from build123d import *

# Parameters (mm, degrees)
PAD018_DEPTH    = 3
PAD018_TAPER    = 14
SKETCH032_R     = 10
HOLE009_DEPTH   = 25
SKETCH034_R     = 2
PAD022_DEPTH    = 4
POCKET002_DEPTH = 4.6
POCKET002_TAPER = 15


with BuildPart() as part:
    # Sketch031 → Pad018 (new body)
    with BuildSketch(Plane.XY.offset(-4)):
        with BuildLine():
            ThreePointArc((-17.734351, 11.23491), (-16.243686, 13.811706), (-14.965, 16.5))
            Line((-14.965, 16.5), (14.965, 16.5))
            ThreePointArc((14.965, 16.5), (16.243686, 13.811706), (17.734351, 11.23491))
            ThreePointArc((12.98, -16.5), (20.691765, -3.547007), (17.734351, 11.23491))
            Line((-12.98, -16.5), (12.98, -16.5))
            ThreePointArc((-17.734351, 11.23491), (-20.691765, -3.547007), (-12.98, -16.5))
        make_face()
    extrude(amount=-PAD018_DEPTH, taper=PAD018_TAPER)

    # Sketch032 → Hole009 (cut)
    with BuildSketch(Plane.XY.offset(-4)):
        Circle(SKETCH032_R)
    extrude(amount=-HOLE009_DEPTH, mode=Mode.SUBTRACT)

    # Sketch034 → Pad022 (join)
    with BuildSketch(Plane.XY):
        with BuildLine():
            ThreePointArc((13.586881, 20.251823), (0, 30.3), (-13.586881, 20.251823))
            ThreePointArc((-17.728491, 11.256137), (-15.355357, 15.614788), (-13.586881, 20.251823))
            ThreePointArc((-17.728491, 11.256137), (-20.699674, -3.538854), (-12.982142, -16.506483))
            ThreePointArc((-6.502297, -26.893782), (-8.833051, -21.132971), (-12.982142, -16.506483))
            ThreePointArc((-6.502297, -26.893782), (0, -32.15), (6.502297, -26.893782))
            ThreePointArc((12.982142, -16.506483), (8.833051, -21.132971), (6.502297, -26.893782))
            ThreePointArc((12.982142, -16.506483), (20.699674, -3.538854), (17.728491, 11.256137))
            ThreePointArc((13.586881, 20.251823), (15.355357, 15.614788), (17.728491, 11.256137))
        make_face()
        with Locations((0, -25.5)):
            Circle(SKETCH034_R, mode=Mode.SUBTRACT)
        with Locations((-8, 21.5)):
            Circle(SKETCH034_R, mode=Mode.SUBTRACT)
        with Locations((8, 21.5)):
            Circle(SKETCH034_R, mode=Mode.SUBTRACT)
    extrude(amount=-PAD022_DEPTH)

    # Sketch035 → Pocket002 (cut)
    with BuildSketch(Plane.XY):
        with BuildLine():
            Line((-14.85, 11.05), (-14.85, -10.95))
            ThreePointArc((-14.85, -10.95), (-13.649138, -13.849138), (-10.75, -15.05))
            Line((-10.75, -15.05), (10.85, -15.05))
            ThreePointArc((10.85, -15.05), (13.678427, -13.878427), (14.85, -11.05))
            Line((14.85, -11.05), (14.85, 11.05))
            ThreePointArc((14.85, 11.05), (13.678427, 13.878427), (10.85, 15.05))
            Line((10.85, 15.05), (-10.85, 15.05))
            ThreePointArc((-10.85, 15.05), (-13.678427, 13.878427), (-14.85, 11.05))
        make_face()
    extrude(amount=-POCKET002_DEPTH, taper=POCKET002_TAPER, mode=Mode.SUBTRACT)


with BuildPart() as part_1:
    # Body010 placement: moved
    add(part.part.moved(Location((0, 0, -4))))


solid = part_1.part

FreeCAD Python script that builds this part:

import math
import FreeCAD as App
import Part
import Sketcher
from FreeCAD import Vector

doc = App.newDocument("Part")
body = doc.addObject("PartDesign::Body", "Body")

sketch1 = body.newObject("Sketcher::SketchObject", "Sketch")
sketch1.AttachmentSupport = (doc.getObject("XY_Plane"), [""])
sketch1.MapMode = "FlatFace"
sketch1.AttachmentOffset = App.Placement(Vector(0, 0, -4), App.Rotation())
sketch1.addGeometry([
    Part.ArcOfCircle(Part.Circle(Vector(-49, 31, 0), Vector(0, 0, 1), 37), math.radians(-32.35), math.radians(-23.13)),
    Part.ArcOfCircle(Part.Circle(Vector(0, 0, 0), Vector(0, 0, 1), 21), math.radians(148), math.radians(232)),
    Part.LineSegment(Vector(-13, -16, 0), Vector(13, -16, 0)),
    Part.ArcOfCircle(Part.Circle(Vector(0, 0, 0), Vector(0, 0, 1), 21), math.radians(-52), math.radians(32)),
    Part.ArcOfCircle(Part.Circle(Vector(49, 31, 0), Vector(0, 0, 1), 37), math.radians(-156.87), math.radians(-147.65)),
    Part.LineSegment(Vector(15, 16, 0), Vector(-15, 16, 0)),
], False)
sketch1.addConstraint([
    Sketcher.Constraint("Tangent", 0, 1, 1, 1),
    Sketcher.Constraint("Coincident", 1, 2, 2, 1),
    Sketcher.Constraint("Coincident", 2, 2, 3, 1),
    Sketcher.Constraint("Tangent", 3, 2, 4, 2),
    Sketcher.Constraint("Coincident", 4, 1, 5, 1),
    Sketcher.Constraint("Coincident", 5, 2, 0, 2),
    Sketcher.Constraint("Horizontal", 2),
    Sketcher.Constraint("Horizontal", 5),
    Sketcher.Constraint("Coincident", 1, 3, -1, 1),
    Sketcher.Constraint("Coincident", 3, 3, -1, 1),
    Sketcher.Constraint("Equal", 1, 3),
    Sketcher.Constraint("Equal", 0, 4),
    Sketcher.Constraint("Horizontal", 0, 3, 4, 3),
    Sketcher.Constraint("DistanceY", 2, 2, 4, 1, 33.0),
    Sketcher.Constraint("DistanceX", 2, 1, 2, 2, 25.96),
    Sketcher.Constraint("DistanceX", 5, 2, 5, 1, 29.93),
    Sketcher.Constraint("DistanceY", 1, 2, -1, 1, 16.5),
    Sketcher.Constraint("Radius", 0, 36.999781),
])
pad1 = body.newObject("PartDesign::Pad", "Pad")
pad1.Profile = sketch1
pad1.Length = 3
pad1.Reversed = True
pad1.TaperAngle = -14

sketch2 = body.newObject("Sketcher::SketchObject", "Sketch001")
sketch2.AttachmentSupport = (doc.getObject("XY_Plane"), [""])
sketch2.MapMode = "FlatFace"
sketch2.AttachmentOffset = App.Placement(Vector(0, 0, -4), App.Rotation())
sketch2.addGeometry(Part.Circle(Vector(0, 0, 0), Vector(0, 0, 1), 10), False)
sketch2.addConstraint([
    Sketcher.Constraint("Coincident", 0, 3, -1, 1),
    Sketcher.Constraint("Diameter", 0, 20.0),
])
pocket1 = body.newObject("PartDesign::Pocket", "Pocket")
pocket1.Profile = sketch2
pocket1.Length = 25

sketch3 = body.newObject("Sketcher::SketchObject", "Sketch002")
sketch3.AttachmentSupport = (doc.getObject("XY_Plane"), [""])
sketch3.MapMode = "FlatFace"
sketch3.addGeometry([
    Part.ArcOfCircle(Part.Circle(Vector(0, 16.1, 0), Vector(0, 0, 1), 14.2), math.radians(17), math.radians(163)),
    Part.ArcOfCircle(Part.Circle(Vector(-49, 31.1, 0), Vector(0, 0, 1), 37), math.radians(-32.41), math.radians(-17.03)),
    Part.ArcOfCircle(Part.Circle(Vector(0, 0, 0), Vector(0, 0, 1), 21), math.radians(148), math.radians(232)),
    Part.ArcOfCircle(Part.Circle(Vector(-24.1, -30.7, 0), Vector(0, 0, 1), 18), math.radians(12), math.radians(52)),
    Part.ArcOfCircle(Part.Circle(Vector(0, -25.5, 0), Vector(0, 0, 1), 6.6), math.radians(-168), math.radians(-12)),
    Part.ArcOfCircle(Part.Circle(Vector(24.1, -30.7, 0), Vector(0, 0, 1), 18), math.radians(128), math.radians(168)),
    Part.ArcOfCircle(Part.Circle(Vector(0, 0, 0), Vector(0, 0, 1), 21), math.radians(-52), math.radians(32)),
    Part.ArcOfCircle(Part.Circle(Vector(49, 31.1, 0), Vector(0, 0, 1), 37), math.radians(-162.97), math.radians(-147.59)),
    Part.Circle(Vector(0, -25.5, 0), Vector(0, 0, 1), 2),
    Part.Circle(Vector(-8, 21.5, 0), Vector(0, 0, 1), 2),
    Part.Circle(Vector(8, 21.5, 0), Vector(0, 0, 1), 2),
], False)
sketch3.addConstraint([
    Sketcher.Constraint("Tangent", 0, 2, 1, 2),
    Sketcher.Constraint("Tangent", 1, 1, 2, 1),
    Sketcher.Constraint("Tangent", 2, 2, 3, 2),
    Sketcher.Constraint("Tangent", 3, 1, 4, 1),
    Sketcher.Constraint("Tangent", 4, 2, 5, 2),
    Sketcher.Constraint("Tangent", 5, 1, 6, 1),
    Sketcher.Constraint("Tangent", 6, 2, 7, 2),
    Sketcher.Constraint("Tangent", 7, 1, 0, 1),
    Sketcher.Constraint("Coincident", 2, 3, -1, 1),
    Sketcher.Constraint("Coincident", 6, 3, -1, 1),
    Sketcher.Constraint("Coincident", 8, 3, 4, 3),
    Sketcher.Constraint("Equal", 3, 5),
    Sketcher.Constraint("Equal", 2, 6),
    Sketcher.Constraint("Equal", 1, 7),
    Sketcher.Constraint("Equal", 8, 9),
    Sketcher.Constraint("Equal", 9, 10),
    Sketcher.Constraint("Symmetric", 9, 3, 10, 3, -2),
    Sketcher.Constraint("PointOnObject", 0, 3, -2),
    Sketcher.Constraint("PointOnObject", 4, 3, -2),
    Sketcher.Constraint("Diameter", 8, 4.0),
    Sketcher.Constraint("Radius", 2, 21.000001),
    Sketcher.Constraint("Radius", 0, 14.21),
    Sketcher.Constraint("Radius", 4, 6.649999),
    Sketcher.Constraint("DistanceX", 9, 3, -1, 1, 8.0),
    Sketcher.Constraint("DistanceY", 8, 3, 9, 3, 47.0),
    Sketcher.Constraint("DistanceY", 4, 3, -1, 1, 25.500001),
    Sketcher.Constraint("DistanceY", -1, 1, 0, 3, 16.09),
    Sketcher.Constraint("Radius", 1, 37.000035),
    Sketcher.Constraint("Radius", 3, 18.020007),
])
pad2 = body.newObject("PartDesign::Pad", "Pad001")
pad2.Profile = sketch3
pad2.Length = 4
pad2.Reversed = True

sketch4 = body.newObject("Sketcher::SketchObject", "Sketch003")
sketch4.AttachmentSupport = (doc.getObject("XY_Plane"), [""])
sketch4.MapMode = "FlatFace"
sketch4.addGeometry([
    Part.LineSegment(Vector(-14.8, 11.1, 0), Vector(-14.8, -10.9, 0)),
    Part.ArcOfCircle(Part.Circle(Vector(-10.8, -11, 0), Vector(0, 0, 1), 4.1), math.radians(180), math.radians(270)),
    Part.LineSegment(Vector(-10.8, -15.1, 0), Vector(10.8, -15.1, 0)),
    Part.ArcOfCircle(Part.Circle(Vector(10.8, -11, 0), Vector(0, 0, 1), 4), math.radians(-90), math.radians(0)),
    Part.LineSegment(Vector(14.8, -11.1, 0), Vector(14.8, 11.1, 0)),
    Part.ArcOfCircle(Part.Circle(Vector(10.8, 11, 0), Vector(0, 0, 1), 4), math.radians(0), math.radians(90)),
    Part.LineSegment(Vector(10.8, 15.1, 0), Vector(-10.8, 15.1, 0)),
    Part.ArcOfCircle(Part.Circle(Vector(-10.8, 11, 0), Vector(0, 0, 1), 4), math.radians(90), math.radians(180)),
], False)
sketch4.addConstraint([
    Sketcher.Constraint("Tangent", 0, 2, 1, 1),
    Sketcher.Constraint("Tangent", 1, 2, 2, 1),
    Sketcher.Constraint("Tangent", 2, 2, 3, 1),
    Sketcher.Constraint("Tangent", 3, 2, 4, 1),
    Sketcher.Constraint("Tangent", 4, 2, 5, 1),
    Sketcher.Constraint("Tangent", 5, 2, 6, 1),
    Sketcher.Constraint("Tangent", 6, 2, 7, 1),
    Sketcher.Constraint("Tangent", 7, 2, 0, 1),
    Sketcher.Constraint("Vertical", 0),
    Sketcher.Constraint("Horizontal", 2),
    Sketcher.Constraint("Vertical", 4),
    Sketcher.Constraint("Horizontal", 6),
    Sketcher.Constraint("Equal", 3, 5),
    Sketcher.Constraint("Equal", 5, 7),
    Sketcher.Constraint("Symmetric", 3, 3, 7, 3, -1, 1),
    Sketcher.Constraint("Radius", 3, 4.0),
    Sketcher.Constraint("Radius", 1, 4.099999),
    Sketcher.Constraint("DistanceY", 0, 2, 0, 1, 22.0),
    Sketcher.Constraint("DistanceX", 2, 1, 2, 2, 21.6),
])
pocket2 = body.newObject("PartDesign::Pocket", "Pocket001")
pocket2.Profile = sketch4
pocket2.Length = 4.6
pocket2.TaperAngle = -15
body2 = doc.addObject("PartDesign::Body", "Body001")
doc.recompute()

body.Placement = App.Placement(Vector(0, 0, -4), App.Rotation(Vector(0, 0, 1), 0))
boolean = body2.newObject("PartDesign::Boolean", "Boolean")
boolean.Type = "Fuse"
boolean.addObjects([body])

doc.recompute()
